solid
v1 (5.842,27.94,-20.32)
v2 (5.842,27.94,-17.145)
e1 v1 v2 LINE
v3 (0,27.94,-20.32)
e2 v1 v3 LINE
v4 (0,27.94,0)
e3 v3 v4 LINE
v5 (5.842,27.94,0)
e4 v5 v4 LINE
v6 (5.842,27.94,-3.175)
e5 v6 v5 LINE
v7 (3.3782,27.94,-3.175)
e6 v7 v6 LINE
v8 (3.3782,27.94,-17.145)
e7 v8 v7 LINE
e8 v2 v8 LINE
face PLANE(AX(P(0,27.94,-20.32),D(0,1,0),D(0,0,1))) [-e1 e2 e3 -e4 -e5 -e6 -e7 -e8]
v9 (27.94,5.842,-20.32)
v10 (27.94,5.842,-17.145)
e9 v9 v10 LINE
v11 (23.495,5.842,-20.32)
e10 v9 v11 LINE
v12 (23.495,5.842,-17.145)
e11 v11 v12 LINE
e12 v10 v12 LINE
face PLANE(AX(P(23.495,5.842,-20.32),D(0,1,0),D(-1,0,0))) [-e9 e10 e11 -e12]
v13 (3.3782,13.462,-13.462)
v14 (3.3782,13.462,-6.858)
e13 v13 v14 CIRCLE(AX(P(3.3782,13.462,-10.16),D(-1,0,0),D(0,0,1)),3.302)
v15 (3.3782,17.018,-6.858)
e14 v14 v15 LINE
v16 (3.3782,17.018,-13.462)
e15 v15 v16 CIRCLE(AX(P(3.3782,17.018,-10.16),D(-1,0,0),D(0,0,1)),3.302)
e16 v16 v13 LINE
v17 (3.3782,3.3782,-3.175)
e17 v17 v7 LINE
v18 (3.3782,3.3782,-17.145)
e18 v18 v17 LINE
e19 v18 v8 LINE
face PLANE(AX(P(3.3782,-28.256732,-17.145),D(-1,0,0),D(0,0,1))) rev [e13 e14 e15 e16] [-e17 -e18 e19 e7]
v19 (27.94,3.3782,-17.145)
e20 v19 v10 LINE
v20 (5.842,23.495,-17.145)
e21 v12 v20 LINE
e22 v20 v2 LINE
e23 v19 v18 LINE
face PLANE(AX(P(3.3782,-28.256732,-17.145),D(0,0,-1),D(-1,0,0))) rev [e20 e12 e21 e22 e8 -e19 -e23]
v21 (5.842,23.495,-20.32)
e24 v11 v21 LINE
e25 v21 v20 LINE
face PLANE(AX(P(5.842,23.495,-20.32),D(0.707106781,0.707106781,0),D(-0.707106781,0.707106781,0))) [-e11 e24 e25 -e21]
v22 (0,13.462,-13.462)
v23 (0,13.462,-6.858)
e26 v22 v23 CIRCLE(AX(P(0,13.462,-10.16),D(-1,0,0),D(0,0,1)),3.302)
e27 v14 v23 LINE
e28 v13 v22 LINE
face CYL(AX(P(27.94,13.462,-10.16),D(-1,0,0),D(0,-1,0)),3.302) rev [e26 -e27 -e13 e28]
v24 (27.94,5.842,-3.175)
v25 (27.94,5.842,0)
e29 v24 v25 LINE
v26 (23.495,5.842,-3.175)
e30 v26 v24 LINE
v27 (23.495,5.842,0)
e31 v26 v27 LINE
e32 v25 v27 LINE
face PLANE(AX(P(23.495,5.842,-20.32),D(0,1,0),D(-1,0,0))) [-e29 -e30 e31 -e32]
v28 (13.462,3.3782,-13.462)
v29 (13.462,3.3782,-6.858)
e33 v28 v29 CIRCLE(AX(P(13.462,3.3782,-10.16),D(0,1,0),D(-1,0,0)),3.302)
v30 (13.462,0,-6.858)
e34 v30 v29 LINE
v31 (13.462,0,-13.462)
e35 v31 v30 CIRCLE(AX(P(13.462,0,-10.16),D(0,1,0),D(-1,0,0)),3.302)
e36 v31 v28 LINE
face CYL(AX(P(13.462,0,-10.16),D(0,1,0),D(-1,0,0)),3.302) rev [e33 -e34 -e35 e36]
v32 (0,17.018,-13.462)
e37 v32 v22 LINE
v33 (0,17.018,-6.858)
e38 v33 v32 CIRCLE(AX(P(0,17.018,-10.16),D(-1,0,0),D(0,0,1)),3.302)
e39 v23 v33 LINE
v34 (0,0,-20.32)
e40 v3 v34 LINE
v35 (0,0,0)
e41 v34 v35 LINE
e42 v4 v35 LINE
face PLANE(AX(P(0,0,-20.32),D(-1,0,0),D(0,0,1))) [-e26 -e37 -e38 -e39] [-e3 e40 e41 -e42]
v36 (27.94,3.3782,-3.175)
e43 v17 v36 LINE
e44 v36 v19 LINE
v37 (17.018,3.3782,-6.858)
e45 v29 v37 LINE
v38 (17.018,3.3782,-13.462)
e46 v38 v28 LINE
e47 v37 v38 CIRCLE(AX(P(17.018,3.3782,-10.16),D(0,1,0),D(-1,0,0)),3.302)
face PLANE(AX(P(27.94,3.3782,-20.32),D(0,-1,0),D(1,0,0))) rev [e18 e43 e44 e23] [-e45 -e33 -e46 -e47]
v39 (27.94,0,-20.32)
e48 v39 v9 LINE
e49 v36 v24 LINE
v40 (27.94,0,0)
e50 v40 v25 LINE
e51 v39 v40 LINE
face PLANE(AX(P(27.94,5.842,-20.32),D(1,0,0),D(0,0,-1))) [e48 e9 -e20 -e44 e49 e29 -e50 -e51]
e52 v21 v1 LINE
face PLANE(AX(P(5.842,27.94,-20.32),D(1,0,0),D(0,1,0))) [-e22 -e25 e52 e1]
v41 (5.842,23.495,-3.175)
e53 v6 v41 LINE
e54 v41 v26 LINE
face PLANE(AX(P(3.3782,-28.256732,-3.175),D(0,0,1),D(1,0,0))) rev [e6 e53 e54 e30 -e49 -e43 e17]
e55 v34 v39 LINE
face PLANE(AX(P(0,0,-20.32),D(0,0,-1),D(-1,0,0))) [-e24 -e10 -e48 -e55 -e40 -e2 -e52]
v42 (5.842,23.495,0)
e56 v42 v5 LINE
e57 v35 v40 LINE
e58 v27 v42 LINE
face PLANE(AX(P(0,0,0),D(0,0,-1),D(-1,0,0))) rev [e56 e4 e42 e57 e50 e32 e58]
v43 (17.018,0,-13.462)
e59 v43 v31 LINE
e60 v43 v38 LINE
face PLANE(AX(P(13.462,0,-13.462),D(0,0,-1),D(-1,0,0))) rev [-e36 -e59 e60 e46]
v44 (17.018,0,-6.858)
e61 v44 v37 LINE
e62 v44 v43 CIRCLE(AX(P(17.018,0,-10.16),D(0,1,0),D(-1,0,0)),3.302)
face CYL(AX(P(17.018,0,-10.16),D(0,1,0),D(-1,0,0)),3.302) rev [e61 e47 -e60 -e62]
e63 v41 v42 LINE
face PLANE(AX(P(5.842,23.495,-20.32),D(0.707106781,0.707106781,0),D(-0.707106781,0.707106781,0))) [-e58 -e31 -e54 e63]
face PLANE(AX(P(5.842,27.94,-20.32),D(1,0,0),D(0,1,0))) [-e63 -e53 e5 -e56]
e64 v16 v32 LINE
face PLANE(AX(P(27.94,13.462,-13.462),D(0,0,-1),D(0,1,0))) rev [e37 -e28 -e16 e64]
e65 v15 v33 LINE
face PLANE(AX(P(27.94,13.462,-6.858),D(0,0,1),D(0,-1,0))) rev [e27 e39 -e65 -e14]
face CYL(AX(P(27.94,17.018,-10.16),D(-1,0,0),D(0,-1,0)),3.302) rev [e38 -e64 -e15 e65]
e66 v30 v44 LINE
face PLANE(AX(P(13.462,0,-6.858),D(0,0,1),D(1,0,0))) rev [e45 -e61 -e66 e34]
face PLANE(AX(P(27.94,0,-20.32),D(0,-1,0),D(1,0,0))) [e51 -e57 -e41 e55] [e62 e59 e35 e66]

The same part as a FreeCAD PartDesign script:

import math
import FreeCAD as App
import Part
import Sketcher

V = App.Vector
Q = App.Units.Quantity


def add_polygon(sketch, points):
    """Adds a closed chain of lines whose ends are joined by coincident constraints."""
    first, n = sketch.GeometryCount, len(points)
    for a, b in zip(points, points[1:] + points[:1]):
        sketch.addGeometry(Part.LineSegment(App.Vector(*a, 0), App.Vector(*b, 0)), False)
    for i in range(n):
        sketch.addConstraint(Sketcher.Constraint("Coincident", first + i, 2, first + (i + 1) % n, 1))

doc = App.newDocument("Part")
body = doc.addObject("PartDesign::Body", "Body")

# Sketch on XY plane
sketch1 = doc.addObject("Sketcher::SketchObject", "Sketch")
body.addObject(sketch1)
sketch1.AttachmentSupport = (doc.XY_Plane, [""])
sketch1.MapMode = "FlatFace"
add_polygon(sketch1, [(0, 27.94), (0, 0), (27.94, 0), (27.94, 5.842), (23.495, 5.842), (5.842, 23.495), (5.842, 27.94)])  # lines 0-6
sketch1.addConstraint([
    Sketcher.Constraint("Vertical", 0),
    Sketcher.Constraint("Horizontal", 1),
    Sketcher.Constraint("Vertical", 2),
    Sketcher.Constraint("Horizontal", 3),
    Sketcher.Constraint("Vertical", 5),
    Sketcher.Constraint("Horizontal", 6),
    Sketcher.Constraint("Coincident", 0, 2, -1, 1),
    Sketcher.Constraint("Equal", 1, 0),
    Sketcher.Constraint("Equal", 6, 2),
    Sketcher.Constraint("Equal", 3, 5),
    Sketcher.Constraint("DistanceX", 1, 1, 1, 2, Q("1.1 in")),
    Sketcher.Constraint("DistanceX", 6, 2, 6, 1, Q("0.23 in")),
    Sketcher.Constraint("DistanceX", 3, 2, 3, 1, Q("0.175 in")),
])
pad1 = doc.addObject("PartDesign::Pad", "Pad")
body.addObject(pad1)
pad1.Profile = sketch1
pad1.Length = Q("0.8 in")
pad1.Reversed = True

# Sketch on XZ plane
sketch2 = doc.addObject("Sketcher::SketchObject", "Sketch001")
body.addObject(sketch2)
sketch2.AttachmentSupport = (doc.XZ_Plane, [""])
sketch2.MapMode = "FlatFace"
sketch2.AttachmentOffset = App.Placement(V(0, 0, -1.1 * 25.4), App.Rotation())
add_polygon(sketch2, [(3.3782, -17.145), (3.3782, -3.175), (27.94, -3.175), (27.94, -17.145)])  # lines 0-3
sketch2.addConstraint([
    Sketcher.Constraint("Vertical", 0),
    Sketcher.Constraint("Horizontal", 1),
    Sketcher.Constraint("Vertical", 2),
    Sketcher.Constraint("Horizontal", 3),
    Sketcher.Constraint("DistanceY", 0, 1, 0, 2, Q("0.55 in")),
    Sketcher.Constraint("DistanceX", -1, 1, 1, 2, Q("1.1 in")),
    Sketcher.Constraint("DistanceX", 1, 1, 1, 2, Q("0.967 in")),
    Sketcher.Constraint("DistanceY", 0, 2, -1, 1, Q("0.125 in")),
])
pocket1 = doc.addObject("PartDesign::Pocket", "Pocket")
body.addObject(pocket1)
pocket1.Profile = sketch2
pocket1.Length = Q("0.967 in")
pocket1.Reversed = True

# Sketch on XZ plane
sketch3 = doc.addObject("Sketcher::SketchObject", "Sketch002")
body.addObject(sketch3)
sketch3.AttachmentSupport = (doc.XZ_Plane, [""])
sketch3.MapMode = "FlatFace"
sketch3.AttachmentOffset = App.Placement(V(0, 0, -0.133 * 25.4), App.Rotation())
sketch3.addGeometry([
    Part.LineSegment(V(17.018, -13.462, 0), V(13.462, -13.462, 0)),
    Part.ArcOfCircle(Part.Circle(V(13.462, -10.16, 0), V(0, 0, 1), 3.302), math.radians(90), math.radians(270)),
    Part.LineSegment(V(13.462, -6.858, 0), V(17.018, -6.858, 0)),
    Part.ArcOfCircle(Part.Circle(V(17.018, -10.16, 0), V(0, 0, 1), 3.302), math.radians(-90), math.radians(90)),
], False)
sketch3.addConstraint([
    Sketcher.Constraint("Tangent", 0, 2, 1, 2),
    Sketcher.Constraint("Tangent", 1, 1, 2, 1),
    Sketcher.Constraint("Tangent", 2, 2, 3, 2),
    Sketcher.Constraint("Tangent", 3, 1, 0, 1),
    Sketcher.Constraint("Horizontal", 0),
    Sketcher.Constraint("Horizontal", 2),
    Sketcher.Constraint("Radius", 1, Q("0.13 in")),
    Sketcher.Constraint("DistanceX", 0, 2, 0, 1, Q("0.14 in")),
    Sketcher.Constraint("DistanceY", 1, 3, -1, 1, Q("0.4 in")),
    Sketcher.Constraint("DistanceX", -1, 1, 1, 3, Q("0.53 in")),
])
pocket2 = doc.addObject("PartDesign::Pocket", "Pocket001")
body.addObject(pocket2)
pocket2.Profile = sketch3
pocket2.Type = "ThroughAll"
pocket2.Reversed = True
doc.recompute()

polarpattern = doc.addObject("PartDesign::PolarPattern", "PolarPattern")
body.addObject(polarpattern)
polarpattern.Originals = [pocket2]
polarpattern.Axis = (doc.Z_Axis, [""])
polarpattern.Angle = 270
polarpattern.Occurrences = 2
polarpattern.Reversed = True
body.Tip = polarpattern

doc.recompute()
